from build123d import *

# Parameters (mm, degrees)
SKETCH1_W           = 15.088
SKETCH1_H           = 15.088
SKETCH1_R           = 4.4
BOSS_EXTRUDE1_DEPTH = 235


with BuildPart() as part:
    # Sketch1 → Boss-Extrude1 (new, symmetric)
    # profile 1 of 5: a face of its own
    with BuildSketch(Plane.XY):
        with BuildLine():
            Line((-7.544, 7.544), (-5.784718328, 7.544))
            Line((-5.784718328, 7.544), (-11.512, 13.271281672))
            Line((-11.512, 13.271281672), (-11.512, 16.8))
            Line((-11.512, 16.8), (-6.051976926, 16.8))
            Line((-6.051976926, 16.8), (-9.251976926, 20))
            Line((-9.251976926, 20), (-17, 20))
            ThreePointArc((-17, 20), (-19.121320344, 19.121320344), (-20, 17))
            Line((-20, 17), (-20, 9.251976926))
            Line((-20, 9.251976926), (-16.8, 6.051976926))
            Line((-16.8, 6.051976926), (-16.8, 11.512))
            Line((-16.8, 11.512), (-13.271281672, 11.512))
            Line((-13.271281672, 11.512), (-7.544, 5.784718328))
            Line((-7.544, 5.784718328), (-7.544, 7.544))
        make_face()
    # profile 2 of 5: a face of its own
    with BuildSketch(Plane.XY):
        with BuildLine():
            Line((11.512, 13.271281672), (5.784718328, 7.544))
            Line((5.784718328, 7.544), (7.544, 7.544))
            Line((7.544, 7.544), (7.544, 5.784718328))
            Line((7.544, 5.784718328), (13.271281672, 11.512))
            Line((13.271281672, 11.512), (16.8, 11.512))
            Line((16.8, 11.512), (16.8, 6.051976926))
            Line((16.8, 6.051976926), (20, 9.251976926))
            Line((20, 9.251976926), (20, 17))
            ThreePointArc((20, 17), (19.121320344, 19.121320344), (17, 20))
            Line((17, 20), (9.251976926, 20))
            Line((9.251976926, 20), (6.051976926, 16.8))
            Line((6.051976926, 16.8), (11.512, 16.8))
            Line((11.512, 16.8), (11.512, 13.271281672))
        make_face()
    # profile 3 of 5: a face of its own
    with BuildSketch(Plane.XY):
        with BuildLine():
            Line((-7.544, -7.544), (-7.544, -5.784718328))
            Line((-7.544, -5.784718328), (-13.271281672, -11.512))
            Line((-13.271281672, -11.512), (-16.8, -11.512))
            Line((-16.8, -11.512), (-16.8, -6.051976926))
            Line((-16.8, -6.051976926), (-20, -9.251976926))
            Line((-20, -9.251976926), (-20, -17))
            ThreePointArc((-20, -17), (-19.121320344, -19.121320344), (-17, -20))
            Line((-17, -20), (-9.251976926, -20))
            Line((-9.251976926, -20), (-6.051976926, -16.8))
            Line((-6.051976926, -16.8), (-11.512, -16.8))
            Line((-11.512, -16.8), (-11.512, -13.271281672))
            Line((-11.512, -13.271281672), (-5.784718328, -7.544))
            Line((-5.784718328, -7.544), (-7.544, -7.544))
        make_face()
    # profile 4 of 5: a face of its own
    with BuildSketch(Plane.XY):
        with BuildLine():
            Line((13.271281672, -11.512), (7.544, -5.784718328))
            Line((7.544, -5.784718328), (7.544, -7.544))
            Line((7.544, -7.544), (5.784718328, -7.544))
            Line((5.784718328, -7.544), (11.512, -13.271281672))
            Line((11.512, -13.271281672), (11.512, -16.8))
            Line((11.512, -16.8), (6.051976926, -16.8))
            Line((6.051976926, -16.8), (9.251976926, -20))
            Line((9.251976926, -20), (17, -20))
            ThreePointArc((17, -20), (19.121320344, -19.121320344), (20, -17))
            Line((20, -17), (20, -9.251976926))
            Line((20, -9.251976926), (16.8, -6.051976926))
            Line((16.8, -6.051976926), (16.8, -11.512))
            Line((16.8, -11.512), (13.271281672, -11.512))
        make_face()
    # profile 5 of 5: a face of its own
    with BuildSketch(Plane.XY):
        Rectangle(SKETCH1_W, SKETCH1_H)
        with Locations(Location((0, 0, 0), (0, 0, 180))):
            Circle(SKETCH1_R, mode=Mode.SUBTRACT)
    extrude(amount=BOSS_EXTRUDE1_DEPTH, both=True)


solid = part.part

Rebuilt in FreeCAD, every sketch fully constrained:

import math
import FreeCAD as App
import Part
import Sketcher

V = App.Vector

doc = App.newDocument("Part")
body = doc.addObject("PartDesign::Body", "Body")

sketch1 = body.newObject("Sketcher::SketchObject", "Sketch")
sketch1.AttachmentSupport = (doc.getObject("XY_Plane"), [""])
sketch1.MapMode = "FlatFace"
sketch1.addGeometry([
    Part.LineSegment(V(-5.8, 7.5, 0), V(-11.5, 13.3, 0)),
    Part.LineSegment(V(-11.5, 13.3, 0), V(-11.5, 16.8, 0)),
    Part.LineSegment(V(-11.5, 16.8, 0), V(-6.1, 16.8, 0)),
    Part.LineSegment(V(-6.1, 16.8, 0), V(-9.3, 20, 0)),
    Part.LineSegment(V(-9.3, 20, 0), V(-17, 20, 0)),
    Part.ArcOfCircle(Part.Circle(V(-17, 17, 0), V(0, 0, 1), 3), math.radians(90), math.radians(180)),
    Part.LineSegment(V(-20, 17, 0), V(-20, 9.3, 0)),
    Part.LineSegment(V(-20, 9.3, 0), V(-16.8, 6.1, 0)),
    Part.LineSegment(V(-16.8, 6.1, 0), V(-16.8, 11.5, 0)),
    Part.LineSegment(V(-16.8, 11.5, 0), V(-13.3, 11.5, 0)),
    Part.LineSegment(V(-13.3, 11.5, 0), V(-7.5, 5.8, 0)),
    Part.LineSegment(V(-7.5, 5.8, 0), V(-7.5, -5.8, 0)),
    Part.LineSegment(V(-7.5, -5.8, 0), V(-13.3, -11.5, 0)),
    Part.LineSegment(V(-13.3, -11.5, 0), V(-16.8, -11.5, 0)),
    Part.LineSegment(V(-16.8, -11.5, 0), V(-16.8, -6.1, 0)),
    Part.LineSegment(V(-16.8, -6.1, 0), V(-20, -9.3, 0)),
    Part.LineSegment(V(-20, -9.3, 0), V(-20, -17, 0)),
    Part.ArcOfCircle(Part.Circle(V(-17, -17, 0), V(0, 0, 1), 3), math.radians(180), math.radians(270)),
    Part.LineSegment(V(-17, -20, 0), V(-9.3, -20, 0)),
    Part.LineSegment(V(-9.3, -20, 0), V(-6.1, -16.8, 0)),
    Part.LineSegment(V(-6.1, -16.8, 0), V(-11.5, -16.8, 0)),
    Part.LineSegment(V(-11.5, -16.8, 0), V(-11.5, -13.3, 0)),
    Part.LineSegment(V(-11.5, -13.3, 0), V(-5.8, -7.5, 0)),
    Part.LineSegment(V(-5.8, -7.5, 0), V(5.8, -7.5, 0)),
    Part.LineSegment(V(5.8, -7.5, 0), V(11.5, -13.3, 0)),
    Part.LineSegment(V(11.5, -13.3, 0), V(11.5, -16.8, 0)),
    Part.LineSegment(V(11.5, -16.8, 0), V(6.1, -16.8, 0)),
    Part.LineSegment(V(6.1, -16.8, 0), V(9.3, -20, 0)),
    Part.LineSegment(V(9.3, -20, 0), V(17, -20, 0)),
    Part.ArcOfCircle(Part.Circle(V(17, -17, 0), V(0, 0, 1), 3), math.radians(-90), math.radians(0)),
    Part.LineSegment(V(20, -17, 0), V(20, -9.3, 0)),
    Part.LineSegment(V(20, -9.3, 0), V(16.8, -6.1, 0)),
    Part.LineSegment(V(16.8, -6.1, 0), V(16.8, -11.5, 0)),
    Part.LineSegment(V(16.8, -11.5, 0), V(13.3, -11.5, 0)),
    Part.LineSegment(V(13.3, -11.5, 0), V(7.5, -5.8, 0)),
    Part.LineSegment(V(7.5, -5.8, 0), V(7.5, 5.8, 0)),
    Part.LineSegment(V(7.5, 5.8, 0), V(13.3, 11.5, 0)),
    Part.LineSegment(V(13.3, 11.5, 0), V(16.8, 11.5, 0)),
    Part.LineSegment(V(16.8, 11.5, 0), V(16.8, 6.1, 0)),
    Part.LineSegment(V(16.8, 6.1, 0), V(20, 9.3, 0)),
    Part.LineSegment(V(20, 9.3, 0), V(20, 17, 0)),
    Part.ArcOfCircle(Part.Circle(V(17, 17, 0), V(0, 0, 1), 3), math.radians(0), math.radians(90)),
    Part.LineSegment(V(17, 20, 0), V(9.3, 20, 0)),
    Part.LineSegment(V(9.3, 20, 0), V(6.1, 16.8, 0)),
    Part.LineSegment(V(6.1, 16.8, 0), V(11.5, 16.8, 0)),
    Part.LineSegment(V(11.5, 16.8, 0), V(11.5, 13.3, 0)),
    Part.LineSegment(V(11.5, 13.3, 0), V(5.8, 7.5, 0)),
    Part.LineSegment(V(5.8, 7.5, 0), V(-5.8, 7.5, 0)),
    Part.Circle(V(0, 0, 0), V(0, 0, 1), 4.4),
], False)
sketch1.addConstraint([
    Sketcher.Constraint("Coincident", 0, 2, 1, 1),
    Sketcher.Constraint("Coincident", 1, 2, 2, 1),
    Sketcher.Constraint("Coincident", 2, 2, 3, 1),
    Sketcher.Constraint("Coincident", 3, 2, 4, 1),
    Sketcher.Constraint("Tangent", 4, 2, 5, 1),
    Sketcher.Constraint("Tangent", 5, 2, 6, 1),
    Sketcher.Constraint("Coincident", 6, 2, 7, 1),
    Sketcher.Constraint("Coincident", 7, 2, 8, 1),
    Sketcher.Constraint("Coincident", 8, 2, 9, 1),
    Sketcher.Constraint("Coincident", 9, 2, 10, 1),
    Sketcher.Constraint("Coincident", 10, 2, 11, 1),
    Sketcher.Constraint("Coincident", 11, 2, 12, 1),
    Sketcher.Constraint("Coincident", 12, 2, 13, 1),
    Sketcher.Constraint("Coincident", 13, 2, 14, 1),
    Sketcher.Constraint("Coincident", 14, 2, 15, 1),
    Sketcher.Constraint("Coincident", 15, 2, 16, 1),
    Sketcher.Constraint("Tangent", 16, 2, 17, 1),
    Sketcher.Constraint("Tangent", 17, 2, 18, 1),
    Sketcher.Constraint("Coincident", 18, 2, 19, 1),
    Sketcher.Constraint("Coincident", 19, 2, 20, 1),
    Sketcher.Constraint("Coincident", 20, 2, 21, 1),
    Sketcher.Constraint("Coincident", 21, 2, 22, 1),
    Sketcher.Constraint("Coincident", 22, 2, 23, 1),
    Sketcher.Constraint("Coincident", 23, 2, 24, 1),
    Sketcher.Constraint("Coincident", 24, 2, 25, 1),
    Sketcher.Constraint("Coincident", 25, 2, 26, 1),
    Sketcher.Constraint("Coincident", 26, 2, 27, 1),
    Sketcher.Constraint("Coincident", 27, 2, 28, 1),
    Sketcher.Constraint("Tangent", 28, 2, 29, 1),
    Sketcher.Constraint("Tangent", 29, 2, 30, 1),
    Sketcher.Constraint("Coincident", 30, 2, 31, 1),
    Sketcher.Constraint("Coincident", 31, 2, 32, 1),
    Sketcher.Constraint("Coincident", 32, 2, 33, 1),
    Sketcher.Constraint("Coincident", 33, 2, 34, 1),
    Sketcher.Constraint("Coincident", 34, 2, 35, 1),
    Sketcher.Constraint("Coincident", 35, 2, 36, 1),
    Sketcher.Constraint("Coincident", 36, 2, 37, 1),
    Sketcher.Constraint("Coincident", 37, 2, 38, 1),
    Sketcher.Constraint("Coincident", 38, 2, 39, 1),
    Sketcher.Constraint("Coincident", 39, 2, 40, 1),
    Sketcher.Constraint("Tangent", 40, 2, 41, 1),
    Sketcher.Constraint("Tangent", 41, 2, 42, 1),
    Sketcher.Constraint("Coincident", 42, 2, 43, 1),
    Sketcher.Constraint("Coincident", 43, 2, 44, 1),
    Sketcher.Constraint("Coincident", 44, 2, 45, 1),
    Sketcher.Constraint("Coincident", 45, 2, 46, 1),
    Sketcher.Constraint("Coincident", 46, 2, 47, 1),
    Sketcher.Constraint("Coincident", 47, 2, 0, 1),
    Sketcher.Constraint("Vertical", 1),
    Sketcher.Constraint("Horizontal", 2),
    Sketcher.Constraint("Horizontal", 4),
    Sketcher.Constraint("Vertical", 6),
    Sketcher.Constraint("Vertical", 8),
    Sketcher.Constraint("Horizontal", 9),
    Sketcher.Constraint("Vertical", 11),
    Sketcher.Constraint("Horizontal", 13),
    Sketcher.Constraint("Vertical", 14),
    Sketcher.Constraint("Vertical", 16),
    Sketcher.Constraint("Horizontal", 18),
    Sketcher.Constraint("Horizontal", 20),
    Sketcher.Constraint("Vertical", 21),
    Sketcher.Constraint("Horizontal", 23),
    Sketcher.Constraint("Vertical", 25),
    Sketcher.Constraint("Horizontal", 26),
    Sketcher.Constraint("Horizontal", 28),
    Sketcher.Constraint("Vertical", 30),
    Sketcher.Constraint("Vertical", 32),
    Sketcher.Constraint("Horizontal", 33),
    Sketcher.Constraint("Vertical", 35),
    Sketcher.Constraint("Horizontal", 37),
    Sketcher.Constraint("Vertical", 38),
    Sketcher.Constraint("Vertical", 40),
    Sketcher.Constraint("Horizontal", 42),
    Sketcher.Constraint("Horizontal", 44),
    Sketcher.Constraint("Vertical", 45),
    Sketcher.Constraint("Horizontal", 47),
    Sketcher.Constraint("Coincident", 48, 3, -1, 1),
    Sketcher.Constraint("Equal", 5, 17),
    Sketcher.Constraint("Equal", 17, 29),
    Sketcher.Constraint("Equal", 29, 41),
    Sketcher.Constraint("Symmetric", 5, 3, 29, 3, -1, 1),
    Sketcher.Constraint("Symmetric", 17, 3, 41, 3, -1, 1),
    Sketcher.Constraint("Symmetric", 0, 2, 24, 2, -1, 1),
    Sketcher.Constraint("Symmetric", 2, 2, 26, 2, -1, 1),
    Sketcher.Constraint("Symmetric", 7, 2, 31, 2, -1, 1),
    Sketcher.Constraint("Symmetric", 9, 2, 33, 2, -1, 1),
    Sketcher.Constraint("Symmetric", 10, 2, 34, 2, -1, 1),
    Sketcher.Constraint("Symmetric", 12, 2, 36, 2, -1, 1),
    Sketcher.Constraint("Symmetric", 14, 2, 38, 2, -1, 1),
    Sketcher.Constraint("Symmetric", 19, 2, 43, 2, -1, 1),
    Sketcher.Constraint("Symmetric", 21, 2, 45, 2, -1, 1),
    Sketcher.Constraint("Symmetric", 22, 2, 46, 2, -1, 1),
    Sketcher.Constraint("Symmetric", 17, 3, 29, 3, -2),
    Sketcher.Constraint("Symmetric", 21, 2, 24, 2, -2),
    Sketcher.Constraint("Symmetric", 19, 2, 26, 2, -2),
    Sketcher.Constraint("Symmetric", 14, 2, 31, 2, -2),
    Sketcher.Constraint("Symmetric", 12, 2, 33, 2, -2),
    Sketcher.Constraint("Parallel", 0, 3),
    Sketcher.Constraint("Parallel", 3, 7),
    Sketcher.Constraint("Parallel", 7, 10),
    Sketcher.Constraint("Perpendicular", 10, 12),
    Sketcher.Constraint("Parallel", 12, 15),
    Sketcher.Constraint("Parallel", 15, 19),
    Sketcher.Constraint("Parallel", 19, 22),
    Sketcher.Constraint("Perpendicular", 22, 24),
    Sketcher.Constraint("Parallel", 24, 27),
    Sketcher.Constraint("Parallel", 27, 31),
    Sketcher.Constraint("Perpendicular", 34, 36),
    Sketcher.Constraint("Parallel", 36, 39),
    Sketcher.Constraint("Parallel", 39, 43),
    Sketcher.Constraint("Horizontal", 15, 2, 30, 2),
    Sketcher.Constraint("Equal", 37, 1),
    Sketcher.Constraint("Equal", 42, 6),
    Sketcher.Constraint("Equal", 44, 8),
    Sketcher.Constraint("Equal", 47, 11),
    Sketcher.Constraint("Equal", 3, 7),
    Sketcher.Constraint("Equal", 0, 10),
    Sketcher.Constraint("Radius", 5, 3.0),
    Sketcher.Constraint("Diameter", 48, 8.8),
    Sketcher.Constraint("DistanceX", 5, 3, -1, 1, 17.0),
    Sketcher.Constraint("DistanceY", -1, 1, 1, 2, 16.8),
    Sketcher.Constraint("DistanceX", 0, 2, -1, 1, 11.512),
    Sketcher.Constraint("DistanceX", 10, 2, -1, 1, 7.544),
    Sketcher.Constraint("Distance", 0, 8.099599),
    Sketcher.Constraint("DistanceX", 2, 1, 2, 2, 5.460023),
])
pad1 = body.newObject("PartDesign::Pad", "Pad")
pad1.Profile = sketch1
pad1.Length = 470
pad1.Midplane = True

doc.recompute()
